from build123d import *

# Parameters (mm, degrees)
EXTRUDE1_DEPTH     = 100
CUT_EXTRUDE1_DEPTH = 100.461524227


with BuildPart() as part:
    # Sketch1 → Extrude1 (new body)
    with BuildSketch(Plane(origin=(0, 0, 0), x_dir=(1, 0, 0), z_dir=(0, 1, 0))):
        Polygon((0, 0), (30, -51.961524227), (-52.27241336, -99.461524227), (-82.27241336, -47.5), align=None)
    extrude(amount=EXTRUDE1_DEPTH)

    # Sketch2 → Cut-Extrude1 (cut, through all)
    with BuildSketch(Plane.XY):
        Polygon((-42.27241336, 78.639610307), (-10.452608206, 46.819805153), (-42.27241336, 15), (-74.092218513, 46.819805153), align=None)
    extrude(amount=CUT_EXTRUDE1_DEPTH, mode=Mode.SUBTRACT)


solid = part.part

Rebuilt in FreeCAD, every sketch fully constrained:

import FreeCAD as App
import Part
import Sketcher
from FreeCAD import Vector
Q = App.Units.Quantity

doc = App.newDocument("Part")
body = doc.addObject("PartDesign::Body", "Body")

# Sketch on XZ plane
sketch1 = body.newObject("Sketcher::SketchObject", "Sketch")
sketch1.AttachmentSupport = (doc.getObject("XZ_Plane"), [""])
sketch1.MapMode = "FlatFace"
sketch1.addGeometry([
    Part.LineSegment(Vector(30, 52, 0), Vector(0, 0, 0)),
    Part.LineSegment(Vector(0, 0, 0), Vector(-82, 48, 0)),
    Part.LineSegment(Vector(-82, 48, 0), Vector(-52, 99, 0)),
    Part.LineSegment(Vector(-52, 99, 0), Vector(30, 52, 0)),
], False)
sketch1.addConstraint([
    Sketcher.Constraint("Coincident", 0, 2, 1, 1),
    Sketcher.Constraint("Coincident", 1, 2, 2, 1),
    Sketcher.Constraint("Coincident", 2, 2, 3, 1),
    Sketcher.Constraint("Coincident", 3, 2, 0, 1),
    Sketcher.Constraint("Coincident", 0, 2, -1, 1),
    Sketcher.Constraint("Perpendicular", 0, 1),
    Sketcher.Constraint("Perpendicular", 1, 2),
    Sketcher.Constraint("Perpendicular", 2, 3),
    Sketcher.Constraint("Angle", 0, Q("-120 deg")),
    Sketcher.Constraint("Distance", 0, 60.0),
    Sketcher.Constraint("Distance", 1, 95.0),
])
pad1 = body.newObject("PartDesign::Pad", "Pad")
pad1.Profile = sketch1
pad1.Length = 100
pad1.Reversed = True

# Sketch on XY plane
sketch2 = body.newObject("Sketcher::SketchObject", "Sketch001")
sketch2.AttachmentSupport = (doc.getObject("XY_Plane"), [""])
sketch2.MapMode = "FlatFace"
sketch2.addGeometry([
    Part.LineSegment(Vector(-10, 47, 0), Vector(-42, 79, 0)),
    Part.LineSegment(Vector(-42, 79, 0), Vector(-74, 47, 0)),
    Part.LineSegment(Vector(-74, 47, 0), Vector(-42, 15, 0)),
    Part.LineSegment(Vector(-42, 15, 0), Vector(-10, 47, 0)),
], False)
sketch2.addConstraint([
    Sketcher.Constraint("Coincident", 0, 2, 1, 1),
    Sketcher.Constraint("Coincident", 1, 2, 2, 1),
    Sketcher.Constraint("Coincident", 2, 2, 3, 1),
    Sketcher.Constraint("Coincident", 3, 2, 0, 1),
    Sketcher.Constraint("Perpendicular", 0, 1),
    Sketcher.Constraint("Perpendicular", 1, 2),
    Sketcher.Constraint("Perpendicular", 2, 3),
    Sketcher.Constraint("Horizontal", 1, 2, 3, 2),
    Sketcher.Constraint("Vertical", 0, 2, 2, 2),
    Sketcher.Constraint("Distance", 0, 45.0),
    Sketcher.Constraint("DistanceY", -1, 1, 2, 2, 15.0),
    Sketcher.Constraint("DistanceX", 1, 2, -1, 1, 74.092219),
])
pocket1 = body.newObject("PartDesign::Pocket", "Pocket")
pocket1.Profile = sketch2
pocket1.Type = "ThroughAll"
pocket1.Reversed = True

doc.recompute()
